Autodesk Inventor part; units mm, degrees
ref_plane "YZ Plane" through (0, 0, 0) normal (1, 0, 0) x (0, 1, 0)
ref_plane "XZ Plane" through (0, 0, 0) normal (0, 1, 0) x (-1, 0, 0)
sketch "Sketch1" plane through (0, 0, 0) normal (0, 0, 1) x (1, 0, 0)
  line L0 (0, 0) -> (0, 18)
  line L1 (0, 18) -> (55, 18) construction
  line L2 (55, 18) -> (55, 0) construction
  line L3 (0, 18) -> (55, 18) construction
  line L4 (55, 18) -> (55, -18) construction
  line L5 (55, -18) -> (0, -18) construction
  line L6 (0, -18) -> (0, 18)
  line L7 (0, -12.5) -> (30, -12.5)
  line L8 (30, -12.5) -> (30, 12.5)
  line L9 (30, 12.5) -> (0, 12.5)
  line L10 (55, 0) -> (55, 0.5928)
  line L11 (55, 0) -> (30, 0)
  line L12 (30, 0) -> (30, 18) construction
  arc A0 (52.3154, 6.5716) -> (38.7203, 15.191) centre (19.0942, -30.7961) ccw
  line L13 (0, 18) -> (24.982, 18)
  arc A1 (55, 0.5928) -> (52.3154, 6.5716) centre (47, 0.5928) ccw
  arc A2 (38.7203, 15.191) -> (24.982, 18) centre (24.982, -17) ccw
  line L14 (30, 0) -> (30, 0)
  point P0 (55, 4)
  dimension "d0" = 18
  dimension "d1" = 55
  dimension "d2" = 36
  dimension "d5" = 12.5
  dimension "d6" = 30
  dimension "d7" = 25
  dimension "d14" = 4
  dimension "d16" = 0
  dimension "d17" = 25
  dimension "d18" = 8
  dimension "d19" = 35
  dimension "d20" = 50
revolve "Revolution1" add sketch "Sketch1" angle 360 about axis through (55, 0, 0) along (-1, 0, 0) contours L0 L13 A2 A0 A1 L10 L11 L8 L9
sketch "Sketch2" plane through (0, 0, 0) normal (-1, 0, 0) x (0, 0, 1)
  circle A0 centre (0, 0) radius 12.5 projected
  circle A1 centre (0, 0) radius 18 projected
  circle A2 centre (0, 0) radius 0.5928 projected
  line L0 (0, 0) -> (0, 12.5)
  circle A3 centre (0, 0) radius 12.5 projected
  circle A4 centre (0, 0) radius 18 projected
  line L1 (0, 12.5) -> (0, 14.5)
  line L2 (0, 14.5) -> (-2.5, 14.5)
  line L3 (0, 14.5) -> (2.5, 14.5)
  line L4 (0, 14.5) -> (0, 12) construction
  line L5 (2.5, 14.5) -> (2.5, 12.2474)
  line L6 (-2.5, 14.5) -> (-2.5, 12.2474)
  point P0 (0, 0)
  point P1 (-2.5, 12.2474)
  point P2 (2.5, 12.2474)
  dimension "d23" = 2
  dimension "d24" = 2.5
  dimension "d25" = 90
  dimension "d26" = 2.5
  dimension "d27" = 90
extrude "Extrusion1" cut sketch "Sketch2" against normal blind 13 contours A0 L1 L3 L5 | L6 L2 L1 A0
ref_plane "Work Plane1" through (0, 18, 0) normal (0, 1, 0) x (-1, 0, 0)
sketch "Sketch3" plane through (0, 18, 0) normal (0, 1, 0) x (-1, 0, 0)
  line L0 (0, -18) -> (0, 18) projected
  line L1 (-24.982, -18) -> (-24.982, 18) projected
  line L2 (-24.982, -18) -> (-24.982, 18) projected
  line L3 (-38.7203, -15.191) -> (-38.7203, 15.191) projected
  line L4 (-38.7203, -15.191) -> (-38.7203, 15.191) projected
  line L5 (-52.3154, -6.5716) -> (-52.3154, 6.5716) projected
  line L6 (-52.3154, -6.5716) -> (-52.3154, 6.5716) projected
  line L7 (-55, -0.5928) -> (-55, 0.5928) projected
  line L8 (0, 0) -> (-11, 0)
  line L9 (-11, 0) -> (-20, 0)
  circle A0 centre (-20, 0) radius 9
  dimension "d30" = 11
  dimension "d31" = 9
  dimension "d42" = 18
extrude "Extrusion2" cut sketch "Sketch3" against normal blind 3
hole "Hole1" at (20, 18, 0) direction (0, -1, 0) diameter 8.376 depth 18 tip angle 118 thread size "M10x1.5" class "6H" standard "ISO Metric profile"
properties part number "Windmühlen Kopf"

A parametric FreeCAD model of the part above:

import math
import FreeCAD as App
import Part
import Sketcher
from FreeCAD import Vector

doc = App.newDocument("Part")
body = doc.addObject("PartDesign::Body", "Body")

sketch1 = doc.addObject("Sketcher::SketchObject", "Sketch")
body.addObject(sketch1)
sketch1.AttachmentSupport = (doc.XY_Plane, [""])
sketch1.MapMode = "FlatFace"
sketch1.addGeometry([
    Part.LineSegment(Vector(0, 18, 0), Vector(0, 12.5, 0)),
    Part.LineSegment(Vector(0, 12.5, 0), Vector(30, 12.5, 0)),
    Part.LineSegment(Vector(30, 12.5, 0), Vector(30, 0, 0)),
    Part.LineSegment(Vector(30, 0, 0), Vector(55, 0, 0)),
    Part.LineSegment(Vector(55, 0, 0), Vector(55, 0.6, 0)),
    Part.ArcOfCircle(Part.Circle(Vector(47, 0.6, 0), Vector(0, 0, 1), 8), math.radians(0), math.radians(48)),
    Part.ArcOfCircle(Part.Circle(Vector(19.1, -30.8, 0), Vector(0, 0, 1), 50), math.radians(48.36), math.radians(66.89)),
    Part.ArcOfCircle(Part.Circle(Vector(25, -17, 0), Vector(0, 0, 1), 35), math.radians(67), math.radians(90)),
    Part.LineSegment(Vector(25, 18, 0), Vector(0, 18, 0)),
], False)
sketch1.addConstraint([
    Sketcher.Constraint("Coincident", 0, 2, 1, 1),
    Sketcher.Constraint("Coincident", 1, 2, 2, 1),
    Sketcher.Constraint("Coincident", 2, 2, 3, 1),
    Sketcher.Constraint("Coincident", 3, 2, 4, 1),
    Sketcher.Constraint("Tangent", 4, 2, 5, 1),
    Sketcher.Constraint("Tangent", 5, 2, 6, 1),
    Sketcher.Constraint("Tangent", 6, 2, 7, 1),
    Sketcher.Constraint("Tangent", 7, 2, 8, 1),
    Sketcher.Constraint("Coincident", 8, 2, 0, 1),
    Sketcher.Constraint("Vertical", 0),
    Sketcher.Constraint("Horizontal", 1),
    Sketcher.Constraint("Vertical", 2),
    Sketcher.Constraint("Horizontal", 3),
    Sketcher.Constraint("Vertical", 4),
    Sketcher.Constraint("Horizontal", 8),
    Sketcher.Constraint("PointOnObject", 0, 2, -2),
    Sketcher.Constraint("PointOnObject", 2, 2, -1),
    Sketcher.Constraint("Radius", 5, 8.0),
    Sketcher.Constraint("Radius", 7, 35.0),
    Sketcher.Constraint("DistanceX", 1, 1, 1, 2, 30.0),
    Sketcher.Constraint("DistanceX", 3, 1, 3, 2, 25.0),
    Sketcher.Constraint("DistanceY", 2, 2, 2, 1, 12.5),
    Sketcher.Constraint("DistanceY", -1, 1, 7, 2, 18.0),
    Sketcher.Constraint("Radius", 6, 50.0015),
    Sketcher.Constraint("DistanceX", 8, 2, 8, 1, 24.982),
    Sketcher.Constraint("DistanceY", 4, 1, 4, 2, 0.5928),
])
revolution = doc.addObject("PartDesign::Revolution", "Revolution")
body.addObject(revolution)
revolution.Profile = sketch1
revolution.ReferenceAxis = (sketch1, ["H_Axis"])
revolution.Angle = 360

sketch2 = doc.addObject("Sketcher::SketchObject", "Sketch001")
body.addObject(sketch2)
sketch2.AttachmentSupport = (doc.YZ_Plane, [""])
sketch2.MapMode = "FlatFace"
sketch2.addGeometry([
    Part.LineSegment(Vector(12.2, 2.5, 0), Vector(14.5, 2.5, 0)),
    Part.LineSegment(Vector(14.5, 2.5, 0), Vector(14.5, -2.5, 0)),
    Part.LineSegment(Vector(14.5, -2.5, 0), Vector(12.2, -2.5, 0)),
    Part.ArcOfCircle(Part.Circle(Vector(0, 0, 0), Vector(0, 0, 1), 12.5), math.radians(-12), math.radians(12)),
], False)
sketch2.addConstraint([
    Sketcher.Constraint("Coincident", 0, 2, 1, 1),
    Sketcher.Constraint("Coincident", 1, 2, 2, 1),
    Sketcher.Constraint("Coincident", 2, 2, 3, 1),
    Sketcher.Constraint("Coincident", 3, 2, 0, 1),
    Sketcher.Constraint("Horizontal", 0),
    Sketcher.Constraint("Vertical", 1),
    Sketcher.Constraint("Horizontal", 2),
    Sketcher.Constraint("Coincident", 3, 3, -1, 1),
    Sketcher.Constraint("Vertical", 2, 2, 3, 2),
    Sketcher.Constraint("DistanceY", -1, 1, 0, 2, 2.5),
    Sketcher.Constraint("Radius", 3, 12.5),
    Sketcher.Constraint("DistanceX", -1, 1, 0, 2, 14.5),
])
pocket1 = doc.addObject("PartDesign::Pocket", "Pocket")
body.addObject(pocket1)
pocket1.Profile = sketch2
pocket1.Length = 13
pocket1.Reversed = True

sketch3 = doc.addObject("Sketcher::SketchObject", "Sketch002")
body.addObject(sketch3)
sketch3.AttachmentSupport = (doc.XZ_Plane, [""])
sketch3.MapMode = "FlatFace"
sketch3.AttachmentOffset = App.Placement(Vector(0, 0, -18), App.Rotation())
sketch3.addGeometry(Part.Circle(Vector(20, 0, 0), Vector(0, 0, 1), 9), False)
sketch3.addConstraint([
    Sketcher.Constraint("PointOnObject", 0, 3, -1),
    Sketcher.Constraint("Diameter", 0, 18.0),
    Sketcher.Constraint("DistanceX", -1, 1, 0, 3, 20.0),
])
pocket2 = doc.addObject("PartDesign::Pocket", "Pocket001")
body.addObject(pocket2)
pocket2.Profile = sketch3
pocket2.Length = 3
pocket2.Reversed = True

sketch4 = doc.addObject("Sketcher::SketchObject", "Sketch003")
body.addObject(sketch4)
sketch4.AttachmentSupport = (doc.XZ_Plane, [""])
sketch4.MapMode = "FlatFace"
sketch4.AttachmentOffset = App.Placement(Vector(0, 0, -18), App.Rotation())
sketch4.addGeometry(Part.Circle(Vector(20, 0, 0), Vector(0, 0, 1), 4.2), False)
sketch4.addConstraint([
    Sketcher.Constraint("PointOnObject", 0, 3, -1),
    Sketcher.Constraint("Diameter", 0, 8.376),
    Sketcher.Constraint("DistanceX", -1, 1, 0, 3, 20.0),
])
doc.recompute()
hole = doc.addObject("PartDesign::Hole", "Hole")
body.addObject(hole)
hole.Profile = sketch4
hole.ThreadType = "None"
hole.Diameter = 8.376
hole.DepthType = "Dimension"
hole.Depth = 18
hole.DrillPoint = "Angled"
hole.DrillPointAngle = 118
hole.Reversed = True

doc.recompute()
